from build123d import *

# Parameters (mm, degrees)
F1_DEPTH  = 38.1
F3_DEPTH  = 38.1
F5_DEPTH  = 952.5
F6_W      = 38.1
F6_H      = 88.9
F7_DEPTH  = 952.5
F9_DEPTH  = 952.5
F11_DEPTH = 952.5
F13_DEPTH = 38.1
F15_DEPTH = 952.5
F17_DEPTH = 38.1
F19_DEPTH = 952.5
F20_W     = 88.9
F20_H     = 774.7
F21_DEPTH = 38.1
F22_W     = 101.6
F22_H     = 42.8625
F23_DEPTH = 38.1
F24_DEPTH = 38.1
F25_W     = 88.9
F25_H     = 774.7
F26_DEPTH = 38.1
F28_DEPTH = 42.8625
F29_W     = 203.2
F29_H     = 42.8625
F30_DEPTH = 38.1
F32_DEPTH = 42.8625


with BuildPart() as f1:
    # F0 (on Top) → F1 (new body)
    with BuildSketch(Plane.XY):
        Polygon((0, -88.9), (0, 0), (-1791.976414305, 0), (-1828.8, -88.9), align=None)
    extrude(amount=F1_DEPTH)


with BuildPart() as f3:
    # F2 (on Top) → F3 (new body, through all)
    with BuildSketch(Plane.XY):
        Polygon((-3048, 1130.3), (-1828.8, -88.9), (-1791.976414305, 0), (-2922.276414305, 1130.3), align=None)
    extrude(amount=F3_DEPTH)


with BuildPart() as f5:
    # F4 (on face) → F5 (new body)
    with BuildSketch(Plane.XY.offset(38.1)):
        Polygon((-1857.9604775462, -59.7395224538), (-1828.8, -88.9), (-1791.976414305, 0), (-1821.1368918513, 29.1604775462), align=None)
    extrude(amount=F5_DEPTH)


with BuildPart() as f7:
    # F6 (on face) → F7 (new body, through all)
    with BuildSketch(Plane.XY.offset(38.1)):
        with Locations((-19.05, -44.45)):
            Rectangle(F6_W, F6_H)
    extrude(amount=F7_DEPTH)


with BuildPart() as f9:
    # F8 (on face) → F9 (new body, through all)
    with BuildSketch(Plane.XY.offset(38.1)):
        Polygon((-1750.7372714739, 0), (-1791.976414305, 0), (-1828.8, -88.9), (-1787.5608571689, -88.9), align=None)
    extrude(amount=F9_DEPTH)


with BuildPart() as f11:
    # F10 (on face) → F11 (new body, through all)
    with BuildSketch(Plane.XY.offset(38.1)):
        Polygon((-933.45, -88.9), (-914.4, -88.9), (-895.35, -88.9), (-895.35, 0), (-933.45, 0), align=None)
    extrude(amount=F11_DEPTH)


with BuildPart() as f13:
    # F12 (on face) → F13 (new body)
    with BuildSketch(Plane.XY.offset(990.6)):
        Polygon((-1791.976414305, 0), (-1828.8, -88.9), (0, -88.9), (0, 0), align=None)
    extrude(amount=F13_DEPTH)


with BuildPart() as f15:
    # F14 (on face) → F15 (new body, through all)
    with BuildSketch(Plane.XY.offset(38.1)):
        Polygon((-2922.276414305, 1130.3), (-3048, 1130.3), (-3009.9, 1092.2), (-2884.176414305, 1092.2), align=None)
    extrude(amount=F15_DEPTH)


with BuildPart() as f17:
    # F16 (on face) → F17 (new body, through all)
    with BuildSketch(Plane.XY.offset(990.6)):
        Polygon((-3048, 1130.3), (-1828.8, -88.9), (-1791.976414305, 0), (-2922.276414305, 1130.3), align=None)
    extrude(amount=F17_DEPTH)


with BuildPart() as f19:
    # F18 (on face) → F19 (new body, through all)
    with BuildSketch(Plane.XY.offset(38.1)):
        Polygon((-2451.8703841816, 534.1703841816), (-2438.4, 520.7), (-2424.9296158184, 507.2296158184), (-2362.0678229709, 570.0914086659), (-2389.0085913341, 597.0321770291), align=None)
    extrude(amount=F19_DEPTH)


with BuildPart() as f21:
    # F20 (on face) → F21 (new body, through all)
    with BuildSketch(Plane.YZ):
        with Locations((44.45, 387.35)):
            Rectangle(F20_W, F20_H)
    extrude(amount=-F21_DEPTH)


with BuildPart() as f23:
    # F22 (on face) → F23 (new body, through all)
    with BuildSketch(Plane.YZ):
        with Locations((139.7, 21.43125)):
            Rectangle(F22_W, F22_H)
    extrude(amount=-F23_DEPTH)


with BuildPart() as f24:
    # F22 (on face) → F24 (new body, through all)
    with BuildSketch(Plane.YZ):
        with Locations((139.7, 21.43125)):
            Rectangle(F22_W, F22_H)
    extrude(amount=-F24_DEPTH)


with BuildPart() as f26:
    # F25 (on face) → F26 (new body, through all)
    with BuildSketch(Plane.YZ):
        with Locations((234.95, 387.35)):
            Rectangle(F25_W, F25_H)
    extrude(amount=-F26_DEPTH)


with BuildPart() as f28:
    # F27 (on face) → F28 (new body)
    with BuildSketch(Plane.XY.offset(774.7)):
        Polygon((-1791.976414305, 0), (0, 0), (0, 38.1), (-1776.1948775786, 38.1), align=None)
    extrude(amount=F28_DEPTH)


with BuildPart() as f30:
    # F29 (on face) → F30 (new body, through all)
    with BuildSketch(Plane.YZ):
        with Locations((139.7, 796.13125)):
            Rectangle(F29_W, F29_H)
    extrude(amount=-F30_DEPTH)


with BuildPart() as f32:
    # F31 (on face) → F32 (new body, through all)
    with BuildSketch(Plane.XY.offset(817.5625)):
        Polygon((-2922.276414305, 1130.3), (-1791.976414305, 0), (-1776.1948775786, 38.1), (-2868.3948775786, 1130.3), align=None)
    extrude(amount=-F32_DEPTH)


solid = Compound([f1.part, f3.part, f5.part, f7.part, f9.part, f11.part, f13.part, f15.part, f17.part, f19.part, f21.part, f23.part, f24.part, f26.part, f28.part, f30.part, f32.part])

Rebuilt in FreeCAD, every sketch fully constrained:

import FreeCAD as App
import Part
import Sketcher
from FreeCAD import Vector
Q = App.Units.Quantity


def add_polygon(sketch, points):
    """Adds a closed chain of lines whose ends are joined by coincident constraints."""
    first, n = sketch.GeometryCount, len(points)
    for a, b in zip(points, points[1:] + points[:1]):
        sketch.addGeometry(Part.LineSegment(App.Vector(*a, 0), App.Vector(*b, 0)), False)
    for i in range(n):
        sketch.addConstraint(Sketcher.Constraint("Coincident", first + i, 2, first + (i + 1) % n, 1))

doc = App.newDocument("Part")
body = doc.addObject("PartDesign::Body", "Body")

sketch1 = doc.addObject("Sketcher::SketchObject", "Sketch")
body.addObject(sketch1)
sketch1.AttachmentSupport = (doc.XY_Plane, [""])
sketch1.MapMode = "FlatFace"
add_polygon(sketch1, [(0, -88.9), (0, 0), (-1791.976414, 0), (-1828.8, -88.9)])
sketch1.addConstraint([
    Sketcher.Constraint("Vertical", 0),
    Sketcher.Constraint("Horizontal", 1),
    Sketcher.Constraint("Horizontal", 3),
    Sketcher.Constraint("Coincident", 0, 2, -1, 1),
    Sketcher.Constraint("DistanceX", 3, 1, 3, 2, Q("72 in")),
    Sketcher.Constraint("DistanceY", 0, 1, 0, 2, Q("3.5 in")),
    Sketcher.Constraint("Angle", 2, Q("-112.5 deg")),
])
pad1 = doc.addObject("PartDesign::Pad", "Pad")
body.addObject(pad1)
pad1.Profile = sketch1
pad1.Length = Q("1.5 in")
body2 = doc.addObject("PartDesign::Body", "Body001")

sketch2 = doc.addObject("Sketcher::SketchObject", "Sketch001")
body2.addObject(sketch2)
sketch2.AttachmentSupport = (doc.getObject("XY_Plane001"), [""])
sketch2.MapMode = "FlatFace"
add_polygon(sketch2, [(-3048, 1130.3), (-1828.8, -88.9), (-1791.976414, 0), (-2922.276414, 1130.3)])
sketch2.addConstraint([
    Sketcher.Constraint("Horizontal", 3),
    Sketcher.Constraint("PointOnObject", 1, 2, -1),
    Sketcher.Constraint("Parallel", 0, 2),
    Sketcher.Constraint("DistanceX", 0, 2, -1, 1, Q("72 in")),
    Sketcher.Constraint("DistanceX", 3, 2, -1, 1, Q("120 in")),
    Sketcher.Constraint("Angle", 0, Q("-45 deg")),
    Sketcher.Constraint("DistanceY", 0, 2, -1, 1, Q("3.5 in")),
    Sketcher.Constraint("Angle", 1, Q("67.5 deg")),
])
pad2 = doc.addObject("PartDesign::Pad", "Pad001")
body2.addObject(pad2)
pad2.Profile = sketch2
pad2.Length = Q("1.5 in")
body3 = doc.addObject("PartDesign::Body", "Body002")

sketch3 = doc.addObject("Sketcher::SketchObject", "Sketch002")
body3.addObject(sketch3)
sketch3.AttachmentSupport = (doc.getObject("XY_Plane002"), [""])
sketch3.MapMode = "FlatFace"
sketch3.AttachmentOffset = App.Placement(Vector(0, 0, 1.5 * 25.4), App.Rotation())
add_polygon(sketch3, [(-1857.960478, -59.739522), (-1828.8, -88.9), (-1791.976414, 0), (-1821.136892, 29.160478)])
sketch3.addConstraint([
    Sketcher.Constraint("PointOnObject", 1, 2, -1),
    Sketcher.Constraint("Parallel", 0, 2),
    Sketcher.Constraint("Parallel", 1, 3),
    Sketcher.Constraint("DistanceX", 0, 2, -1, 1, Q("72 in")),
    Sketcher.Constraint("Angle", 0, Q("-45 deg")),
    Sketcher.Constraint("DistanceY", 0, 2, -1, 1, Q("3.5 in")),
    Sketcher.Constraint("Angle", 1, Q("67.5 deg")),
    Sketcher.Constraint("DistanceX", 2, 2, -1, 1, 1821.136892),
])
pad3 = doc.addObject("PartDesign::Pad", "Pad002")
body3.addObject(pad3)
pad3.Profile = sketch3
pad3.Length = Q("37.5 in")
body4 = doc.addObject("PartDesign::Body", "Body003")

sketch4 = doc.addObject("Sketcher::SketchObject", "Sketch003")
body4.addObject(sketch4)
sketch4.AttachmentSupport = (doc.getObject("XY_Plane003"), [""])
sketch4.MapMode = "FlatFace"
sketch4.AttachmentOffset = App.Placement(Vector(0, 0, 1.5 * 25.4), App.Rotation())
add_polygon(sketch4, [(-38.1, 0), (-38.1, -88.9), (0, -88.9), (0, 0)])
sketch4.addConstraint([
    Sketcher.Constraint("Vertical", 0),
    Sketcher.Constraint("Horizontal", 1),
    Sketcher.Constraint("Vertical", 2),
    Sketcher.Constraint("Horizontal", 3),
    Sketcher.Constraint("Coincident", 2, 2, -1, 1),
    Sketcher.Constraint("DistanceX", 1, 1, 1, 2, Q("1.5 in")),
    Sketcher.Constraint("DistanceY", 0, 2, 0, 1, Q("3.5 in")),
])
pad4 = doc.addObject("PartDesign::Pad", "Pad003")
body4.addObject(pad4)
pad4.Profile = sketch4
pad4.Length = Q("37.5 in")
body5 = doc.addObject("PartDesign::Body", "Body004")

sketch5 = doc.addObject("Sketcher::SketchObject", "Sketch004")
body5.addObject(sketch5)
sketch5.AttachmentSupport = (doc.getObject("XY_Plane004"), [""])
sketch5.MapMode = "FlatFace"
sketch5.AttachmentOffset = App.Placement(Vector(0, 0, 1.5 * 25.4), App.Rotation())
add_polygon(sketch5, [(-1750.737271, 0), (-1791.976414, 0), (-1828.8, -88.9), (-1787.560857, -88.9)])
sketch5.addConstraint([
    Sketcher.Constraint("Horizontal", 0),
    Sketcher.Constraint("Horizontal", 2),
    Sketcher.Constraint("PointOnObject", 0, 2, -1),
    Sketcher.Constraint("Parallel", 1, 3),
    Sketcher.Constraint("DistanceX", 1, 2, -1, 1, Q("72 in")),
    Sketcher.Constraint("DistanceY", 1, 2, -1, 1, Q("3.5 in")),
    Sketcher.Constraint("Angle", 1, Q("-112.5 deg")),
    Sketcher.Constraint("DistanceX", 0, 2, 0, 1, 41.239143),
])
pad5 = doc.addObject("PartDesign::Pad", "Pad004")
body5.addObject(pad5)
pad5.Profile = sketch5
pad5.Length = Q("37.5 in")
body6 = doc.addObject("PartDesign::Body", "Body005")

sketch6 = doc.addObject("Sketcher::SketchObject", "Sketch005")
body6.addObject(sketch6)
sketch6.AttachmentSupport = (doc.getObject("XY_Plane005"), [""])
sketch6.MapMode = "FlatFace"
sketch6.AttachmentOffset = App.Placement(Vector(0, 0, 1.5 * 25.4), App.Rotation())
add_polygon(sketch6, [(-933.45, -88.9), (-895.35, -88.9), (-895.35, 0), (-933.45, 0)])
sketch6.addConstraint([
    Sketcher.Constraint("Horizontal", 0),
    Sketcher.Constraint("Vertical", 1),
    Sketcher.Constraint("Horizontal", 2),
    Sketcher.Constraint("Vertical", 3),
    Sketcher.Constraint("PointOnObject", 1, 2, -1),
    Sketcher.Constraint("DistanceX", 0, 1, 0, 2, Q("1.5 in")),
    Sketcher.Constraint("DistanceY", 1, 1, 1, 2, Q("3.5 in")),
    Sketcher.Constraint("DistanceX", 0, 2, -1, 1, Q("35.25 in")),
])
pad6 = doc.addObject("PartDesign::Pad", "Pad005")
body6.addObject(pad6)
pad6.Profile = sketch6
pad6.Length = Q("37.5 in")
body7 = doc.addObject("PartDesign::Body", "Body006")

sketch7 = doc.addObject("Sketcher::SketchObject", "Sketch006")
body7.addObject(sketch7)
sketch7.AttachmentSupport = (doc.getObject("XY_Plane006"), [""])
sketch7.MapMode = "FlatFace"
sketch7.AttachmentOffset = App.Placement(Vector(0, 0, 39 * 25.4), App.Rotation())
add_polygon(sketch7, [(-1791.976414, 0), (-1828.8, -88.9), (0, -88.9), (0, 0)])
sketch7.addConstraint([
    Sketcher.Constraint("Horizontal", 1),
    Sketcher.Constraint("Vertical", 2),
    Sketcher.Constraint("Horizontal", 3),
    Sketcher.Constraint("Coincident", 2, 2, -1, 1),
    Sketcher.Constraint("DistanceX", 1, 1, 1, 2, Q("72 in")),
    Sketcher.Constraint("DistanceY", 2, 1, 2, 2, Q("3.5 in")),
    Sketcher.Constraint("Angle", 0, Q("-112.5 deg")),
])
pad7 = doc.addObject("PartDesign::Pad", "Pad006")
body7.addObject(pad7)
pad7.Profile = sketch7
pad7.Length = Q("1.5 in")
body8 = doc.addObject("PartDesign::Body", "Body007")

sketch8 = doc.addObject("Sketcher::SketchObject", "Sketch007")
body8.addObject(sketch8)
sketch8.AttachmentSupport = (doc.getObject("XY_Plane007"), [""])
sketch8.MapMode = "FlatFace"
sketch8.AttachmentOffset = App.Placement(Vector(0, 0, 1.5 * 25.4), App.Rotation())
add_polygon(sketch8, [(-2922.276414, 1130.3), (-3048, 1130.3), (-3009.9, 1092.2), (-2884.176414, 1092.2)])
sketch8.addConstraint([
    Sketcher.Constraint("Horizontal", 0),
    Sketcher.Constraint("Horizontal", 2),
    Sketcher.Constraint("Parallel", 1, 3),
    Sketcher.Constraint("DistanceX", 0, 2, -1, 1, Q("120 in")),
    Sketcher.Constraint("DistanceY", -1, 1, 1, 2, Q("43 in")),
    Sketcher.Constraint("Angle", 1, Q("-45 deg")),
    Sketcher.Constraint("DistanceY", -1, 1, 0, 2, Q("44.5 in")),
    Sketcher.Constraint("DistanceX", 0, 2, 0, 1, 125.723586),
])
pad8 = doc.addObject("PartDesign::Pad", "Pad007")
body8.addObject(pad8)
pad8.Profile = sketch8
pad8.Length = Q("37.5 in")
body9 = doc.addObject("PartDesign::Body", "Body008")

sketch9 = doc.addObject("Sketcher::SketchObject", "Sketch008")
body9.addObject(sketch9)
sketch9.AttachmentSupport = (doc.getObject("XY_Plane008"), [""])
sketch9.MapMode = "FlatFace"
sketch9.AttachmentOffset = App.Placement(Vector(0, 0, 39 * 25.4), App.Rotation())
add_polygon(sketch9, [(-3048, 1130.3), (-1828.8, -88.9), (-1791.976414, 0), (-2922.276414, 1130.3)])
sketch9.addConstraint([
    Sketcher.Constraint("Horizontal", 3),
    Sketcher.Constraint("PointOnObject", 1, 2, -1),
    Sketcher.Constraint("Parallel", 0, 2),
    Sketcher.Constraint("DistanceX", 0, 2, -1, 1, Q("72 in")),
    Sketcher.Constraint("DistanceX", 3, 2, -1, 1, Q("120 in")),
    Sketcher.Constraint("Angle", 0, Q("-45 deg")),
    Sketcher.Constraint("DistanceY", 0, 2, -1, 1, Q("3.5 in")),
    Sketcher.Constraint("Angle", 1, Q("67.5 deg")),
])
pad9 = doc.addObject("PartDesign::Pad", "Pad008")
body9.addObject(pad9)
pad9.Profile = sketch9
pad9.Length = Q("1.5 in")
body10 = doc.addObject("PartDesign::Body", "Body009")

sketch10 = doc.addObject("Sketcher::SketchObject", "Sketch009")
body10.addObject(sketch10)
sketch10.AttachmentSupport = (doc.getObject("XY_Plane009"), [""])
sketch10.MapMode = "FlatFace"
sketch10.AttachmentOffset = App.Placement(Vector(0, 0, 1.5 * 25.4), App.Rotation())
add_polygon(sketch10, [(-2451.870384, 534.170384), (-2424.929616, 507.229616), (-2362.067823, 570.091409), (-2389.008591, 597.032177)])
sketch10.addConstraint([
    Sketcher.Constraint("Perpendicular", 0, 1),
    Sketcher.Constraint("Perpendicular", 1, 2),
    Sketcher.Constraint("Perpendicular", 2, 3),
    Sketcher.Constraint("Angle", 0, Q("-45 deg")),
    Sketcher.Constraint("Distance", 0, Q("1.5 in")),
    Sketcher.Constraint("Distance", 1, Q("3.5 in")),
    Sketcher.Constraint("DistanceY", -1, 1, 1, 2, 570.091409),
    Sketcher.Constraint("DistanceX", 2, 2, -1, 1, 2389.008591),
])
pad10 = doc.addObject("PartDesign::Pad", "Pad009")
body10.addObject(pad10)
pad10.Profile = sketch10
pad10.Length = Q("37.5 in")
body11 = doc.addObject("PartDesign::Body", "Body010")

sketch11 = doc.addObject("Sketcher::SketchObject", "Sketch010")
body11.addObject(sketch11)
sketch11.AttachmentSupport = (doc.getObject("YZ_Plane010"), [""])
sketch11.MapMode = "FlatFace"
add_polygon(sketch11, [(0, 774.7), (0, 0), (88.9, 0), (88.9, 774.7)])
sketch11.addConstraint([
    Sketcher.Constraint("Vertical", 0),
    Sketcher.Constraint("Horizontal", 1),
    Sketcher.Constraint("Vertical", 2),
    Sketcher.Constraint("Horizontal", 3),
    Sketcher.Constraint("Coincident", 0, 2, -1, 1),
    Sketcher.Constraint("DistanceX", 1, 1, 1, 2, Q("3.5 in")),
    Sketcher.Constraint("DistanceY", 0, 2, 0, 1, Q("30.5 in")),
])
pad11 = doc.addObject("PartDesign::Pad", "Pad010")
body11.addObject(pad11)
pad11.Profile = sketch11
pad11.Length = Q("1.5 in")
pad11.Reversed = True
body12 = doc.addObject("PartDesign::Body", "Body011")

sketch12 = doc.addObject("Sketcher::SketchObject", "Sketch011")
body12.addObject(sketch12)
sketch12.AttachmentSupport = (doc.getObject("YZ_Plane011"), [""])
sketch12.MapMode = "FlatFace"
add_polygon(sketch12, [(88.9, 42.8625), (88.9, 0), (190.5, 0), (190.5, 42.8625)])
sketch12.addConstraint([
    Sketcher.Constraint("Vertical", 0),
    Sketcher.Constraint("Horizontal", 1),
    Sketcher.Constraint("Vertical", 2),
    Sketcher.Constraint("Horizontal", 3),
    Sketcher.Constraint("PointOnObject", 0, 2, -1),
    Sketcher.Constraint("DistanceX", 1, 1, 1, 2, Q("4 in")),
    Sketcher.Constraint("DistanceX", -1, 1, 0, 2, Q("3.5 in")),
    Sketcher.Constraint("DistanceY", 0, 2, 0, 1, Q("1.6875 in")),
])
pad12 = doc.addObject("PartDesign::Pad", "Pad011")
body12.addObject(pad12)
pad12.Profile = sketch12
pad12.Length = Q("1.5 in")
pad12.Reversed = True
body13 = doc.addObject("PartDesign::Body", "Body012")

sketch13 = doc.addObject("Sketcher::SketchObject", "Sketch012")
body13.addObject(sketch13)
sketch13.AttachmentSupport = (doc.getObject("YZ_Plane012"), [""])
sketch13.MapMode = "FlatFace"
add_polygon(sketch13, [(88.9, 42.8625), (88.9, 0), (190.5, 0), (190.5, 42.8625)])
sketch13.addConstraint([
    Sketcher.Constraint("Vertical", 0),
    Sketcher.Constraint("Horizontal", 1),
    Sketcher.Constraint("Vertical", 2),
    Sketcher.Constraint("Horizontal", 3),
    Sketcher.Constraint("PointOnObject", 0, 2, -1),
    Sketcher.Constraint("DistanceX", 1, 1, 1, 2, Q("4 in")),
    Sketcher.Constraint("DistanceX", -1, 1, 0, 2, Q("3.5 in")),
    Sketcher.Constraint("DistanceY", 0, 2, 0, 1, Q("1.6875 in")),
])
pad13 = doc.addObject("PartDesign::Pad", "Pad012")
body13.addObject(pad13)
pad13.Profile = sketch13
pad13.Length = Q("1.5 in")
pad13.Reversed = True
body14 = doc.addObject("PartDesign::Body", "Body013")

sketch14 = doc.addObject("Sketcher::SketchObject", "Sketch013")
body14.addObject(sketch14)
sketch14.AttachmentSupport = (doc.getObject("YZ_Plane013"), [""])
sketch14.MapMode = "FlatFace"
add_polygon(sketch14, [(190.5, 774.7), (190.5, 0), (279.4, 0), (279.4, 774.7)])
sketch14.addConstraint([
    Sketcher.Constraint("Vertical", 0),
    Sketcher.Constraint("Horizontal", 1),
    Sketcher.Constraint("Vertical", 2),
    Sketcher.Constraint("Horizontal", 3),
    Sketcher.Constraint("PointOnObject", 0, 2, -1),
    Sketcher.Constraint("DistanceX", 1, 1, 1, 2, Q("3.5 in")),
    Sketcher.Constraint("DistanceY", 0, 2, 0, 1, Q("30.5 in")),
    Sketcher.Constraint("DistanceX", -1, 1, 1, 2, Q("11 in")),
])
pad14 = doc.addObject("PartDesign::Pad", "Pad013")
body14.addObject(pad14)
pad14.Profile = sketch14
pad14.Length = Q("1.5 in")
pad14.Reversed = True
body15 = doc.addObject("PartDesign::Body", "Body014")

sketch15 = doc.addObject("Sketcher::SketchObject", "Sketch014")
body15.addObject(sketch15)
sketch15.AttachmentSupport = (doc.getObject("XY_Plane014"), [""])
sketch15.MapMode = "FlatFace"
sketch15.AttachmentOffset = App.Placement(Vector(0, 0, 30.5 * 25.4), App.Rotation())
add_polygon(sketch15, [(-1791.976414, 0), (0, 0), (0, 38.1), (-1776.194878, 38.1)])
sketch15.addConstraint([
    Sketcher.Constraint("Horizontal", 0),
    Sketcher.Constraint("Vertical", 1),
    Sketcher.Constraint("Horizontal", 2),
    Sketcher.Constraint("Coincident", 0, 2, -1, 1),
    Sketcher.Constraint("DistanceY", 1, 1, 1, 2, Q("1.5 in")),
    Sketcher.Constraint("Angle", 3, Q("-112.5 deg")),
    Sketcher.Constraint("DistanceX", 0, 1, 0, 2, 1791.976414),
])
pad15 = doc.addObject("PartDesign::Pad", "Pad014")
body15.addObject(pad15)
pad15.Profile = sketch15
pad15.Length = Q("1.6875 in")
body16 = doc.addObject("PartDesign::Body", "Body015")

sketch16 = doc.addObject("Sketcher::SketchObject", "Sketch015")
body16.addObject(sketch16)
sketch16.AttachmentSupport = (doc.getObject("YZ_Plane015"), [""])
sketch16.MapMode = "FlatFace"
add_polygon(sketch16, [(38.1, 817.5625), (38.1, 774.7), (241.3, 774.7), (241.3, 817.5625)])
sketch16.addConstraint([
    Sketcher.Constraint("Vertical", 0),
    Sketcher.Constraint("Horizontal", 1),
    Sketcher.Constraint("Vertical", 2),
    Sketcher.Constraint("Horizontal", 3),
    Sketcher.Constraint("DistanceX", 1, 1, 1, 2, Q("8 in")),
    Sketcher.Constraint("DistanceX", -1, 1, 0, 2, Q("1.5 in")),
    Sketcher.Constraint("DistanceY", -1, 1, 0, 2, Q("30.5 in")),
    Sketcher.Constraint("DistanceY", 0, 2, 0, 1, Q("1.6875 in")),
])
pad16 = doc.addObject("PartDesign::Pad", "Pad015")
body16.addObject(pad16)
pad16.Profile = sketch16
pad16.Length = Q("1.5 in")
pad16.Reversed = True
body17 = doc.addObject("PartDesign::Body", "Body016")

sketch17 = doc.addObject("Sketcher::SketchObject", "Sketch016")
body17.addObject(sketch17)
sketch17.AttachmentSupport = (doc.getObject("XY_Plane016"), [""])
sketch17.MapMode = "FlatFace"
sketch17.AttachmentOffset = App.Placement(Vector(0, 0, 32.1875 * 25.4), App.Rotation())
add_polygon(sketch17, [(-2922.276414, 1130.3), (-1791.976414, 0), (-1776.194878, 38.1), (-2868.394878, 1130.3)])
sketch17.addConstraint([
    Sketcher.Constraint("Horizontal", 3),
    Sketcher.Constraint("PointOnObject", 0, 2, -1),
    Sketcher.Constraint("Parallel", 0, 2),
    Sketcher.Constraint("Angle", 0, Q("-45 deg")),
    Sketcher.Constraint("DistanceX", 2, 2, 1, 2, Q("43 in")),
    Sketcher.Constraint("DistanceY", -1, 1, 1, 2, Q("1.5 in")),
    Sketcher.Constraint("Angle", 1, Q("67.5 deg")),
    Sketcher.Constraint("DistanceX", 0, 2, -1, 1, 1791.976414),
])
pad17 = doc.addObject("PartDesign::Pad", "Pad016")
body17.addObject(pad17)
pad17.Profile = sketch17
pad17.Length = Q("1.6875 in")
pad17.Reversed = True

doc.recompute()
